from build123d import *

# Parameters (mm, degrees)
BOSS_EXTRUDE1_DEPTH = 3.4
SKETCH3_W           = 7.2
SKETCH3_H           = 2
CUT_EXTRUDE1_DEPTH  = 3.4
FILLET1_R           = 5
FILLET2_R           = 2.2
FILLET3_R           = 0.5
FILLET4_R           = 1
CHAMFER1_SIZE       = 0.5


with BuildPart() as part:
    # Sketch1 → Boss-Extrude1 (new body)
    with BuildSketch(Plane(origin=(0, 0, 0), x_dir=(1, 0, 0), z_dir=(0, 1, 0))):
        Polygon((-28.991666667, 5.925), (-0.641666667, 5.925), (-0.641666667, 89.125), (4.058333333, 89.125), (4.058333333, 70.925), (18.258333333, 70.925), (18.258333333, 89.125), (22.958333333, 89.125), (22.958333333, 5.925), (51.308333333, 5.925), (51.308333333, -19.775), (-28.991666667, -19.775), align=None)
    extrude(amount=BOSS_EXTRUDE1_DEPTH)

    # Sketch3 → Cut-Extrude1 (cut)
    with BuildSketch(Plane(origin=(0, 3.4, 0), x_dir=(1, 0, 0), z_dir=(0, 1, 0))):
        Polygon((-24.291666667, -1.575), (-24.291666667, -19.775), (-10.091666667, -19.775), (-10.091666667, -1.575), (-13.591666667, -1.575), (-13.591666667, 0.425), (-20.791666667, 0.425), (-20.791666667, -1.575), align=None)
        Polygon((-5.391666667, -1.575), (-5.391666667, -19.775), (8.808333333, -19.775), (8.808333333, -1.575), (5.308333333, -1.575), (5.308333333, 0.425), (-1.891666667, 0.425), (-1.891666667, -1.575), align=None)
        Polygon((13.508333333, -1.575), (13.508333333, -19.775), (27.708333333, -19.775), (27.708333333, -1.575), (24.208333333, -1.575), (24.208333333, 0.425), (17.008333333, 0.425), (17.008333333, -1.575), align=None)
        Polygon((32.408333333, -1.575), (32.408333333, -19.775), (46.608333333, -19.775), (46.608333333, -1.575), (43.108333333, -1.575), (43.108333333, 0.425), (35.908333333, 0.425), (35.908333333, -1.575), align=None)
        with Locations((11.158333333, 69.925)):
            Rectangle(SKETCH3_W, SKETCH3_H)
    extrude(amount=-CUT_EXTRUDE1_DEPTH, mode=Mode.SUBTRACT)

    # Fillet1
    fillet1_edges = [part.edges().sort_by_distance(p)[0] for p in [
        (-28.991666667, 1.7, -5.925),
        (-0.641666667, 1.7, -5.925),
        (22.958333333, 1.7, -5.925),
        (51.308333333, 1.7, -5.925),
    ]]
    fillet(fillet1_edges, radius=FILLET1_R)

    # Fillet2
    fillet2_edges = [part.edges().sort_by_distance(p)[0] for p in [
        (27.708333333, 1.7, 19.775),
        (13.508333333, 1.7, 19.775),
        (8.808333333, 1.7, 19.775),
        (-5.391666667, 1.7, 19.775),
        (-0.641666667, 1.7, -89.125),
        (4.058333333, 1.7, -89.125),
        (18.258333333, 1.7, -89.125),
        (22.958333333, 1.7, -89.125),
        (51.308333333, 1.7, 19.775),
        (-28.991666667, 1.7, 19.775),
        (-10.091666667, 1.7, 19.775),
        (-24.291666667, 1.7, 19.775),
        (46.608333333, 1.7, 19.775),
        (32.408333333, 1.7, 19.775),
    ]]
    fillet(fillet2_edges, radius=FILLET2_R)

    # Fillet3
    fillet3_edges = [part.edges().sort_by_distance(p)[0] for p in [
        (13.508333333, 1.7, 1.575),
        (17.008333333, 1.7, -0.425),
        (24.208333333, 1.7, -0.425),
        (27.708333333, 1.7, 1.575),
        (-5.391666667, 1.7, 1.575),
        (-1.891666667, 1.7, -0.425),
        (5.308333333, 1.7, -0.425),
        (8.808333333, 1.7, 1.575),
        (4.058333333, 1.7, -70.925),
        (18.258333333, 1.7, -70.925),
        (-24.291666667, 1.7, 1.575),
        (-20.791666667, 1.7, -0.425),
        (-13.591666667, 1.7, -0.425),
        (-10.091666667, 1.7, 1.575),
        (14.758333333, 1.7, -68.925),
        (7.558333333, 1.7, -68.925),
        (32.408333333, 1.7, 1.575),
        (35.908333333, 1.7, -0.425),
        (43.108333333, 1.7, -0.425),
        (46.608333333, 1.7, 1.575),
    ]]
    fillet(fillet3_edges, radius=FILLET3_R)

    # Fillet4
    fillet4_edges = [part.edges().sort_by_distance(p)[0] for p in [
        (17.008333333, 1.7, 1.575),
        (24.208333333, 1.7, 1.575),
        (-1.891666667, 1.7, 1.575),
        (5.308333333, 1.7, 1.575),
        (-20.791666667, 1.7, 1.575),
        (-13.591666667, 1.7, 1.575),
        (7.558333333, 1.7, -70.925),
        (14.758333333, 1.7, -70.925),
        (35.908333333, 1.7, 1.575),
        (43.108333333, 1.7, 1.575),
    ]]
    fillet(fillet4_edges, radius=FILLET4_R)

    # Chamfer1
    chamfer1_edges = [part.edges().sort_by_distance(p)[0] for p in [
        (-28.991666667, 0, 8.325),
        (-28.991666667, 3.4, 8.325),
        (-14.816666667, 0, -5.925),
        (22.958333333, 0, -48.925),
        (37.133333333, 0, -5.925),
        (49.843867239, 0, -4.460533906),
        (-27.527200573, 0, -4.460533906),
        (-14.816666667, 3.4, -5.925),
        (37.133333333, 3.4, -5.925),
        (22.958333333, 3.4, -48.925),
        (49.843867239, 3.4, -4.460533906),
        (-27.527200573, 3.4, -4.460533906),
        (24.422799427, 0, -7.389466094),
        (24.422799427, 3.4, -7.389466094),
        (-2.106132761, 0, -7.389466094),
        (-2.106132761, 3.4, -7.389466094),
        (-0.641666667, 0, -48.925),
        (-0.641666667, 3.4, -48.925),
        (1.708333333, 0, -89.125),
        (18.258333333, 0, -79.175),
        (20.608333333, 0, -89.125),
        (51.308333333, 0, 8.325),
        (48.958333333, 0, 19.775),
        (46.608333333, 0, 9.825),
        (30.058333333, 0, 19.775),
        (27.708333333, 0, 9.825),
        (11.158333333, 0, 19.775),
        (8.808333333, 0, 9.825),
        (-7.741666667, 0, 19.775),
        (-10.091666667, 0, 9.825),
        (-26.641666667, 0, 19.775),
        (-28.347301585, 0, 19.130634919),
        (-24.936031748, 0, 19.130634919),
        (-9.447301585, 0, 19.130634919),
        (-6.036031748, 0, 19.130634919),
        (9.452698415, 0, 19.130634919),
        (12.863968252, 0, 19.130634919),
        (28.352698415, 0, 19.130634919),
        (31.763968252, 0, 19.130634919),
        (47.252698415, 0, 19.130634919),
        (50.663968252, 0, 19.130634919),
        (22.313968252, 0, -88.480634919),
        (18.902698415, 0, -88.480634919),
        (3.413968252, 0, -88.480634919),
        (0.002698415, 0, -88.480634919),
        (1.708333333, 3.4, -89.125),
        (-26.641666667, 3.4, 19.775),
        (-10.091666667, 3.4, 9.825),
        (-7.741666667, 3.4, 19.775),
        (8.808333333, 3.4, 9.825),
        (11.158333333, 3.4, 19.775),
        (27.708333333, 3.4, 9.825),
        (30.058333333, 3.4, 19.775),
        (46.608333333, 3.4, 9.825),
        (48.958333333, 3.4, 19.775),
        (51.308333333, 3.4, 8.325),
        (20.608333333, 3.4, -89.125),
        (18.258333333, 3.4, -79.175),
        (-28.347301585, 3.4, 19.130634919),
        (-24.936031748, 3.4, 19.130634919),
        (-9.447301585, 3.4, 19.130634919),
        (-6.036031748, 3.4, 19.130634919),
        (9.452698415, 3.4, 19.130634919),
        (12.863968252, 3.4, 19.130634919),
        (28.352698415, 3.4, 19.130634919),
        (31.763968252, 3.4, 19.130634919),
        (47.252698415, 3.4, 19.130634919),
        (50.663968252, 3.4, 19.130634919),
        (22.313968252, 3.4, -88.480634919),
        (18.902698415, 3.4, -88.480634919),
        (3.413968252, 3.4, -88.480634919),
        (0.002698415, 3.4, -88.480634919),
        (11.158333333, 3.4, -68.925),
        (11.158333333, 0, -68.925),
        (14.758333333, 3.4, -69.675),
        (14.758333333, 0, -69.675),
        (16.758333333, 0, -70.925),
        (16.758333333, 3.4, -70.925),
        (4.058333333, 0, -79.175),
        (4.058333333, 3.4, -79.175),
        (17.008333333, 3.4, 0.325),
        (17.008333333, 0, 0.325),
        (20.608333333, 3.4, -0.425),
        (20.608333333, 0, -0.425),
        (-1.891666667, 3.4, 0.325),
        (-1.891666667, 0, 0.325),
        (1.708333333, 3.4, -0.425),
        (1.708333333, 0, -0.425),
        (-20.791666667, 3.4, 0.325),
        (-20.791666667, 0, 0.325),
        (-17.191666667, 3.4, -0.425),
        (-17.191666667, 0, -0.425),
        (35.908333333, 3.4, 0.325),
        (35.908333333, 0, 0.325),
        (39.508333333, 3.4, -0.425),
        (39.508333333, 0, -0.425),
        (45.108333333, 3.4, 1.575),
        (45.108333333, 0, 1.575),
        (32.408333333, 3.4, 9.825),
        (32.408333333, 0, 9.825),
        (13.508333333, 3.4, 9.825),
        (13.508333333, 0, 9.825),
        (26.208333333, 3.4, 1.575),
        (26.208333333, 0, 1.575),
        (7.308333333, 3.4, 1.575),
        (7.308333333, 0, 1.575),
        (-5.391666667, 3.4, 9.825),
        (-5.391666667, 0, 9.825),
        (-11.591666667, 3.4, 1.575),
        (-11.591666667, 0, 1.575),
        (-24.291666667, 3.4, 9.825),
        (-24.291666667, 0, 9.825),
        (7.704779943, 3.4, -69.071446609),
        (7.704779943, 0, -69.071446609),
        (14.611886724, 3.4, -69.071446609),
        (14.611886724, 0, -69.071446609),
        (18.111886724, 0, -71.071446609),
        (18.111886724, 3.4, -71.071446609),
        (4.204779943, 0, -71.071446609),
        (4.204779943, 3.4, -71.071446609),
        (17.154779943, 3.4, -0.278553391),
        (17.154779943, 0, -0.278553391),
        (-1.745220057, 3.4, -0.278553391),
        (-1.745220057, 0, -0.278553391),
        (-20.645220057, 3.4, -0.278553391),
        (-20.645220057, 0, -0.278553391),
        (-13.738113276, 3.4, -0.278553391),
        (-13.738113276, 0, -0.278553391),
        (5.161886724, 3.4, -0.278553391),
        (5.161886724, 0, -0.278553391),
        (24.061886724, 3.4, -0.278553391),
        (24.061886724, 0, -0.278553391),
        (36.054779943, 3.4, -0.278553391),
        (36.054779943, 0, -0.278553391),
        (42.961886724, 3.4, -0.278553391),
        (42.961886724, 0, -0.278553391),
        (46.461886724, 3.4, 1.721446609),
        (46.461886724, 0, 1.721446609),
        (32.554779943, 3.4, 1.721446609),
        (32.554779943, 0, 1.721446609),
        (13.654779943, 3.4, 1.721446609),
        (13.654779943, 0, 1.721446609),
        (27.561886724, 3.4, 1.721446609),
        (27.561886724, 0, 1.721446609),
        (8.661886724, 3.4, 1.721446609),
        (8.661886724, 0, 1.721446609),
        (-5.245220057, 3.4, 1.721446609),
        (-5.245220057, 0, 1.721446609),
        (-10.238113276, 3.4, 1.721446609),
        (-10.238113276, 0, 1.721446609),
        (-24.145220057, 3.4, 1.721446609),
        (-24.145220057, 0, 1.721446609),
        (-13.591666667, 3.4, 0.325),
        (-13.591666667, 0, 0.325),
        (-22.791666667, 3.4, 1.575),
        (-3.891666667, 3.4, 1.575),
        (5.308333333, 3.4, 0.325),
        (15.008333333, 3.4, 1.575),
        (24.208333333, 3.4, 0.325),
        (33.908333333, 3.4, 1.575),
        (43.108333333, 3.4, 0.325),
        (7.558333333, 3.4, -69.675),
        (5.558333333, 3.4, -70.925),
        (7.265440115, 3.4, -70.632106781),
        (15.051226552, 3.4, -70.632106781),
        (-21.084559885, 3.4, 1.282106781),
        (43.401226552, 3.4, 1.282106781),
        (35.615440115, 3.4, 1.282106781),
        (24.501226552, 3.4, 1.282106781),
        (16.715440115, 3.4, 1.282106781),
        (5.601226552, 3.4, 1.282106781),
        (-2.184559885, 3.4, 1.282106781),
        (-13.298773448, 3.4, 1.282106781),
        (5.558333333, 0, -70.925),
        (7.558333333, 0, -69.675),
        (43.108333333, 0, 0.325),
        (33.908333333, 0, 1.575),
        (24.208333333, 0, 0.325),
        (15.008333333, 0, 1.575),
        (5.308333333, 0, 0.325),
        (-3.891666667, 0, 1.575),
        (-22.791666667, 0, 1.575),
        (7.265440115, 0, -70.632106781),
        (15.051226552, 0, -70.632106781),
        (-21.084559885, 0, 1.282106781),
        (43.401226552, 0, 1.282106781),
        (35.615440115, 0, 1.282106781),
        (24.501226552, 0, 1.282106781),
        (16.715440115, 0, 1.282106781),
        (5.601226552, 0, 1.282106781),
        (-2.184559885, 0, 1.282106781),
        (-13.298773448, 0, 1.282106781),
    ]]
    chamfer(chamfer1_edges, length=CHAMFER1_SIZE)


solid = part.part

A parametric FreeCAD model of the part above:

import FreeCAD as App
import Part
import Sketcher

V = App.Vector
Q = App.Units.Quantity


def edges_at(feature, points):
    """Names of the edges that pass closest to the given points."""
    edges = feature.Shape.Edges
    near = lambda p: min(range(len(edges)), key=lambda i: edges[i].distToShape(Part.Vertex(*p))[0])
    return sorted({f"Edge{near(p) + 1}" for p in points})


def add_polygon(sketch, points):
    """Adds a closed chain of lines whose ends are joined by coincident constraints."""
    first, n = sketch.GeometryCount, len(points)
    for a, b in zip(points, points[1:] + points[:1]):
        sketch.addGeometry(Part.LineSegment(App.Vector(*a, 0), App.Vector(*b, 0)), False)
    for i in range(n):
        sketch.addConstraint(Sketcher.Constraint("Coincident", first + i, 2, first + (i + 1) % n, 1))

doc = App.newDocument("Part")
body = doc.addObject("PartDesign::Body", "Body")

sketch1 = body.newObject("Sketcher::SketchObject", "Sketch")
sketch1.AttachmentSupport = (doc.getObject("XZ_Plane"), [""])
sketch1.MapMode = "FlatFace"
add_polygon(sketch1, [(-0.6, -5.9), (-29, -5.9), (-29, 19.8), (51.3, 19.8), (51.3, -5.9), (23, -5.9), (23, -89.1), (18.3, -89.1), (18.3, -70.9), (4.1, -70.9), (4.1, -89.1), (-0.6, -89.1)])
sketch1.addConstraint(Sketcher.Constraint("Horizontal", 0))
sketch1.addConstraint(Sketcher.Constraint("Vertical", 1))
sketch1.addConstraint(Sketcher.Constraint("Horizontal", 2))
sketch1.addConstraint(Sketcher.Constraint("Vertical", 3))
sketch1.addConstraint(Sketcher.Constraint("Horizontal", 4))
sketch1.addConstraint(Sketcher.Constraint("Vertical", 5))
sketch1.addConstraint(Sketcher.Constraint("Horizontal", 6))
sketch1.addConstraint(Sketcher.Constraint("Vertical", 7))
sketch1.addConstraint(Sketcher.Constraint("Horizontal", 8))
sketch1.addConstraint(Sketcher.Constraint("Vertical", 9))
sketch1.addConstraint(Sketcher.Constraint("Horizontal", 10))
sketch1.addConstraint(Sketcher.Constraint("Vertical", 11))
sketch1.addConstraint(Sketcher.Constraint("Horizontal", 0, 2, 3, 2))
sketch1.addConstraint(Sketcher.Constraint("Horizontal", 6, 2, 9, 2))
sketch1.addConstraint(Sketcher.Constraint("Equal", 0, 4))
sketch1.addConstraint(Sketcher.Constraint("Equal", 6, 10))
sketch1.addConstraint(Sketcher.Constraint("DistanceX", 2, 1, 2, 2, Q("80.3 mm")))
sketch1.addConstraint(Sketcher.Constraint("DistanceX", 6, 2, 6, 1, Q("4.7 mm")))
sketch1.addConstraint(Sketcher.Constraint("DistanceX", 8, 2, 8, 1, Q("14.2 mm")))
sketch1.addConstraint(Sketcher.Constraint("DistanceY", 1, 1, 1, 2, Q("25.7 mm")))
sketch1.addConstraint(Sketcher.Constraint("DistanceY", 5, 2, 5, 1, Q("83.2 mm")))
sketch1.addConstraint(Sketcher.Constraint("DistanceY", 7, 1, 7, 2, Q("18.2 mm")))
sketch1.addConstraint(Sketcher.Constraint("DistanceY", 0, 2, -1, 1, Q("5.925 mm")))
sketch1.addConstraint(Sketcher.Constraint("DistanceX", 0, 2, -1, 1, Q("28.991667 mm")))
pad1 = body.newObject("PartDesign::Pad", "Pad")
pad1.Profile = sketch1
pad1.Length = 3.4
pad1.Reversed = True

sketch2 = body.newObject("Sketcher::SketchObject", "Sketch001")
sketch2.AttachmentSupport = (doc.getObject("XZ_Plane"), [""])
sketch2.MapMode = "FlatFace"
sketch2.AttachmentOffset = App.Placement(V(0, 0, -3.4), App.Rotation())
add_polygon(sketch2, [(-24.3, 1.6), (-24.3, 19.8), (-10.1, 19.8), (-10.1, 1.6), (-13.6, 1.6), (-13.6, -0.4), (-20.8, -0.4), (-20.8, 1.6)])
add_polygon(sketch2, [(-5.4, 1.6), (-5.4, 19.8), (8.8, 19.8), (8.8, 1.6), (5.3, 1.6), (5.3, -0.4), (-1.9, -0.4), (-1.9, 1.6)])
add_polygon(sketch2, [(13.5, 1.6), (13.5, 19.8), (27.7, 19.8), (27.7, 1.6), (24.2, 1.6), (24.2, -0.4), (17, -0.4), (17, 1.6)])
add_polygon(sketch2, [(32.4, 1.6), (32.4, 19.8), (46.6, 19.8), (46.6, 1.6), (43.1, 1.6), (43.1, -0.4), (35.9, -0.4), (35.9, 1.6)])
add_polygon(sketch2, [(7.6, -70.9), (7.6, -68.9), (14.8, -68.9), (14.8, -70.9)])
sketch2.addConstraint(Sketcher.Constraint("Vertical", 0))
sketch2.addConstraint(Sketcher.Constraint("Horizontal", 1))
sketch2.addConstraint(Sketcher.Constraint("Vertical", 2))
sketch2.addConstraint(Sketcher.Constraint("Horizontal", 3))
sketch2.addConstraint(Sketcher.Constraint("Vertical", 4))
sketch2.addConstraint(Sketcher.Constraint("Horizontal", 5))
sketch2.addConstraint(Sketcher.Constraint("Vertical", 6))
sketch2.addConstraint(Sketcher.Constraint("Horizontal", 7))
sketch2.addConstraint(Sketcher.Constraint("Vertical", 8))
sketch2.addConstraint(Sketcher.Constraint("Horizontal", 9))
sketch2.addConstraint(Sketcher.Constraint("Vertical", 10))
sketch2.addConstraint(Sketcher.Constraint("Horizontal", 11))
sketch2.addConstraint(Sketcher.Constraint("Vertical", 12))
sketch2.addConstraint(Sketcher.Constraint("Horizontal", 13))
sketch2.addConstraint(Sketcher.Constraint("Vertical", 14))
sketch2.addConstraint(Sketcher.Constraint("Horizontal", 15))
sketch2.addConstraint(Sketcher.Constraint("Vertical", 16))
sketch2.addConstraint(Sketcher.Constraint("Horizontal", 17))
sketch2.addConstraint(Sketcher.Constraint("Vertical", 18))
sketch2.addConstraint(Sketcher.Constraint("Horizontal", 19))
sketch2.addConstraint(Sketcher.Constraint("Vertical", 20))
sketch2.addConstraint(Sketcher.Constraint("Horizontal", 21))
sketch2.addConstraint(Sketcher.Constraint("Vertical", 22))
sketch2.addConstraint(Sketcher.Constraint("Horizontal", 23))
sketch2.addConstraint(Sketcher.Constraint("Vertical", 24))
sketch2.addConstraint(Sketcher.Constraint("Horizontal", 25))
sketch2.addConstraint(Sketcher.Constraint("Vertical", 26))
sketch2.addConstraint(Sketcher.Constraint("Horizontal", 27))
sketch2.addConstraint(Sketcher.Constraint("Vertical", 28))
sketch2.addConstraint(Sketcher.Constraint("Horizontal", 29))
sketch2.addConstraint(Sketcher.Constraint("Vertical", 30))
sketch2.addConstraint(Sketcher.Constraint("Horizontal", 31))
sketch2.addConstraint(Sketcher.Constraint("Vertical", 32))
sketch2.addConstraint(Sketcher.Constraint("Horizontal", 33))
sketch2.addConstraint(Sketcher.Constraint("Vertical", 34))
sketch2.addConstraint(Sketcher.Constraint("Horizontal", 35))
sketch2.addConstraint(Sketcher.Constraint("Horizontal", 3, 2, 6, 2))
sketch2.addConstraint(Sketcher.Constraint("Horizontal", 1, 2, 8, 2))
sketch2.addConstraint(Sketcher.Constraint("Horizontal", 7, 2, 10, 2))
sketch2.addConstraint(Sketcher.Constraint("Horizontal", 5, 2, 12, 2))
sketch2.addConstraint(Sketcher.Constraint("Horizontal", 11, 2, 14, 2))
sketch2.addConstraint(Sketcher.Constraint("Horizontal", 9, 2, 16, 2))
sketch2.addConstraint(Sketcher.Constraint("Horizontal", 15, 2, 18, 2))
sketch2.addConstraint(Sketcher.Constraint("Horizontal", 13, 2, 20, 2))
sketch2.addConstraint(Sketcher.Constraint("Horizontal", 19, 2, 22, 2))
sketch2.addConstraint(Sketcher.Constraint("Horizontal", 17, 2, 24, 2))
sketch2.addConstraint(Sketcher.Constraint("Horizontal", 23, 2, 26, 2))
sketch2.addConstraint(Sketcher.Constraint("Horizontal", 21, 2, 28, 2))
sketch2.addConstraint(Sketcher.Constraint("Horizontal", 27, 2, 30, 2))
sketch2.addConstraint(Sketcher.Constraint("Equal", 3, 7))
sketch2.addConstraint(Sketcher.Constraint("Equal", 1, 9))
sketch2.addConstraint(Sketcher.Constraint("Equal", 7, 11))
sketch2.addConstraint(Sketcher.Constraint("Equal", 5, 13))
sketch2.addConstraint(Sketcher.Constraint("Equal", 9, 17))
sketch2.addConstraint(Sketcher.Constraint("Equal", 15, 19))
sketch2.addConstraint(Sketcher.Constraint("Equal", 13, 21))
sketch2.addConstraint(Sketcher.Constraint("Equal", 17, 25))
sketch2.addConstraint(Sketcher.Constraint("Equal", 23, 27))
sketch2.addConstraint(Sketcher.Constraint("Equal", 21, 29))
sketch2.addConstraint(Sketcher.Constraint("Equal", 29, 33))
sketch2.addConstraint(Sketcher.Constraint("Equal", 30, 32))
sketch2.addConstraint(Sketcher.Constraint("DistanceY", 4, 2, 4, 1, Q("2 mm")))
sketch2.addConstraint(Sketcher.Constraint("DistanceX", 1, 1, 1, 2, Q("14.2 mm")))
sketch2.addConstraint(Sketcher.Constraint("DistanceX", 3, 2, 3, 1, Q("3.5 mm")))
sketch2.addConstraint(Sketcher.Constraint("DistanceY", 0, 1, 0, 2, Q("18.2 mm")))
sketch2.addConstraint(Sketcher.Constraint("DistanceX", 1, 2, 8, 2, Q("4.7 mm")))
sketch2.addConstraint(Sketcher.Constraint("DistanceX", 9, 2, 16, 2, Q("4.7 mm")))
sketch2.addConstraint(Sketcher.Constraint("DistanceX", 17, 2, 24, 2, Q("4.7 mm")))
sketch2.addConstraint(Sketcher.Constraint("DistanceY", 32, 2, 12, 2, Q("68.5 mm")))
sketch2.addConstraint(Sketcher.Constraint("DistanceX", 12, 2, 32, 2, Q("2.25 mm")))
sketch2.addConstraint(Sketcher.Constraint("DistanceY", -1, 1, 0, 2, Q("19.775 mm")))
sketch2.addConstraint(Sketcher.Constraint("DistanceX", 0, 2, -1, 1, Q("24.291667 mm")))
pocket1 = body.newObject("PartDesign::Pocket", "Pocket")
pocket1.Profile = sketch2
pocket1.Length = 3.4
pocket1.Reversed = True
doc.recompute()

fillet = body.newObject("PartDesign::Fillet", "Fillet")
fillet.Base = (pocket1, edges_at(pocket1, [
    (-28.992, 1.7, -5.925),
    (-0.642, 1.7, -5.925),
    (22.958, 1.7, -5.925),
    (51.308, 1.7, -5.925),
]))
fillet.Radius = 5
doc.recompute()

fillet2 = body.newObject("PartDesign::Fillet", "Fillet001")
fillet2.Base = (fillet, edges_at(fillet, [
    (27.708, 1.7, 19.775),
    (13.508, 1.7, 19.775),
    (8.808, 1.7, 19.775),
    (-5.392, 1.7, 19.775),
    (-0.642, 1.7, -89.125),
    (4.058, 1.7, -89.125),
    (18.258, 1.7, -89.125),
    (22.958, 1.7, -89.125),
    (51.308, 1.7, 19.775),
    (-28.992, 1.7, 19.775),
    (-10.092, 1.7, 19.775),
    (-24.292, 1.7, 19.775),
    (46.608, 1.7, 19.775),
    (32.408, 1.7, 19.775),
]))
fillet2.Radius = 2.2
doc.recompute()

fillet3 = body.newObject("PartDesign::Fillet", "Fillet002")
fillet3.Base = (fillet2, edges_at(fillet2, [
    (13.508, 1.7, 1.575),
    (17.008, 1.7, -0.425),
    (24.208, 1.7, -0.425),
    (27.708, 1.7, 1.575),
    (-5.392, 1.7, 1.575),
    (-1.892, 1.7, -0.425),
    (5.308, 1.7, -0.425),
    (8.808, 1.7, 1.575),
    (4.058, 1.7, -70.925),
    (18.258, 1.7, -70.925),
    (-24.292, 1.7, 1.575),
    (-20.792, 1.7, -0.425),
    (-13.592, 1.7, -0.425),
    (-10.092, 1.7, 1.575),
    (14.758, 1.7, -68.925),
    (7.558, 1.7, -68.925),
    (32.408, 1.7, 1.575),
    (35.908, 1.7, -0.425),
    (43.108, 1.7, -0.425),
    (46.608, 1.7, 1.575),
]))
fillet3.Radius = 0.5
doc.recompute()

fillet4 = body.newObject("PartDesign::Fillet", "Fillet003")
fillet4.Base = (fillet3, edges_at(fillet3, [
    (17.008, 1.7, 1.575),
    (24.208, 1.7, 1.575),
    (-1.892, 1.7, 1.575),
    (5.308, 1.7, 1.575),
    (-20.792, 1.7, 1.575),
    (-13.592, 1.7, 1.575),
    (7.558, 1.7, -70.925),
    (14.758, 1.7, -70.925),
    (35.908, 1.7, 1.575),
    (43.108, 1.7, 1.575),
]))
fillet4.Radius = 1
doc.recompute()

chamfer = body.newObject("PartDesign::Chamfer", "Chamfer")
chamfer.Base = (fillet4, edges_at(fillet4, [
    (-28.992, 0, 8.325),
    (-28.992, 3.4, 8.325),
    (-14.817, 0, -5.925),
    (22.958, 0, -48.925),
    (37.133, 0, -5.925),
    (49.844, 0, -4.461),
    (-27.527, 0, -4.461),
    (-14.817, 3.4, -5.925),
    (37.133, 3.4, -5.925),
    (22.958, 3.4, -48.925),
    (49.844, 3.4, -4.461),
    (-27.527, 3.4, -4.461),
    (24.423, 0, -7.389),
    (24.423, 3.4, -7.389),
    (-2.106, 0, -7.389),
    (-2.106, 3.4, -7.389),
    (-0.642, 0, -48.925),
    (-0.642, 3.4, -48.925),
    (1.708, 0, -89.125),
    (18.258, 0, -79.175),
    (20.608, 0, -89.125),
    (51.308, 0, 8.325),
    (48.958, 0, 19.775),
    (46.608, 0, 9.825),
    (30.058, 0, 19.775),
    (27.708, 0, 9.825),
    (11.158, 0, 19.775),
    (8.808, 0, 9.825),
    (-7.742, 0, 19.775),
    (-10.092, 0, 9.825),
    (-26.642, 0, 19.775),
    (-28.347, 0, 19.131),
    (-24.936, 0, 19.131),
    (-9.447, 0, 19.131),
    (-6.036, 0, 19.131),
    (9.453, 0, 19.131),
    (12.864, 0, 19.131),
    (28.353, 0, 19.131),
    (31.764, 0, 19.131),
    (47.253, 0, 19.131),
    (50.664, 0, 19.131),
    (22.314, 0, -88.481),
    (18.903, 0, -88.481),
    (3.414, 0, -88.481),
    (0.003, 0, -88.481),
    (1.708, 3.4, -89.125),
    (-26.642, 3.4, 19.775),
    (-10.092, 3.4, 9.825),
    (-7.742, 3.4, 19.775),
    (8.808, 3.4, 9.825),
    (11.158, 3.4, 19.775),
    (27.708, 3.4, 9.825),
    (30.058, 3.4, 19.775),
    (46.608, 3.4, 9.825),
    (48.958, 3.4, 19.775),
    (51.308, 3.4, 8.325),
    (20.608, 3.4, -89.125),
    (18.258, 3.4, -79.175),
    (-28.347, 3.4, 19.131),
    (-24.936, 3.4, 19.131),
    (-9.447, 3.4, 19.131),
    (-6.036, 3.4, 19.131),
    (9.453, 3.4, 19.131),
    (12.864, 3.4, 19.131),
    (28.353, 3.4, 19.131),
    (31.764, 3.4, 19.131),
    (47.253, 3.4, 19.131),
    (50.664, 3.4, 19.131),
    (22.314, 3.4, -88.481),
    (18.903, 3.4, -88.481),
    (3.414, 3.4, -88.481),
    (0.003, 3.4, -88.481),
    (11.158, 3.4, -68.925),
    (11.158, 0, -68.925),
    (14.758, 3.4, -69.675),
    (14.758, 0, -69.675),
    (16.758, 0, -70.925),
    (16.758, 3.4, -70.925),
    (4.058, 0, -79.175),
    (4.058, 3.4, -79.175),
    (17.008, 3.4, 0.325),
    (17.008, 0, 0.325),
    (20.608, 3.4, -0.425),
    (20.608, 0, -0.425),
    (-1.892, 3.4, 0.325),
    (-1.892, 0, 0.325),
    (1.708, 3.4, -0.425),
    (1.708, 0, -0.425),
    (-20.792, 3.4, 0.325),
    (-20.792, 0, 0.325),
    (-17.192, 3.4, -0.425),
    (-17.192, 0, -0.425),
    (35.908, 3.4, 0.325),
    (35.908, 0, 0.325),
    (39.508, 3.4, -0.425),
    (39.508, 0, -0.425),
    (45.108, 3.4, 1.575),
    (45.108, 0, 1.575),
    (32.408, 3.4, 9.825),
    (32.408, 0, 9.825),
    (13.508, 3.4, 9.825),
    (13.508, 0, 9.825),
    (26.208, 3.4, 1.575),
    (26.208, 0, 1.575),
    (7.308, 3.4, 1.575),
    (7.308, 0, 1.575),
    (-5.392, 3.4, 9.825),
    (-5.392, 0, 9.825),
    (-11.592, 3.4, 1.575),
    (-11.592, 0, 1.575),
    (-24.292, 3.4, 9.825),
    (-24.292, 0, 9.825),
    (7.705, 3.4, -69.071),
    (7.705, 0, -69.071),
    (14.612, 3.4, -69.071),
    (14.612, 0, -69.071),
    (18.112, 0, -71.071),
    (18.112, 3.4, -71.071),
    (4.205, 0, -71.071),
    (4.205, 3.4, -71.071),
    (17.155, 3.4, -0.279),
    (17.155, 0, -0.279),
    (-1.745, 3.4, -0.279),
    (-1.745, 0, -0.279),
    (-20.645, 3.4, -0.279),
    (-20.645, 0, -0.279),
    (-13.738, 3.4, -0.279),
    (-13.738, 0, -0.279),
    (5.162, 3.4, -0.279),
    (5.162, 0, -0.279),
    (24.062, 3.4, -0.279),
    (24.062, 0, -0.279),
    (36.055, 3.4, -0.279),
    (36.055, 0, -0.279),
    (42.962, 3.4, -0.279),
    (42.962, 0, -0.279),
    (46.462, 3.4, 1.721),
    (46.462, 0, 1.721),
    (32.555, 3.4, 1.721),
    (32.555, 0, 1.721),
    (13.655, 3.4, 1.721),
    (13.655, 0, 1.721),
    (27.562, 3.4, 1.721),
    (27.562, 0, 1.721),
    (8.662, 3.4, 1.721),
    (8.662, 0, 1.721),
    (-5.245, 3.4, 1.721),
    (-5.245, 0, 1.721),
    (-10.238, 3.4, 1.721),
    (-10.238, 0, 1.721),
    (-24.145, 3.4, 1.721),
    (-24.145, 0, 1.721),
    (-13.592, 3.4, 0.325),
    (-13.592, 0, 0.325),
    (-22.792, 3.4, 1.575),
    (-3.892, 3.4, 1.575),
    (5.308, 3.4, 0.325),
    (15.008, 3.4, 1.575),
    (24.208, 3.4, 0.325),
    (33.908, 3.4, 1.575),
    (43.108, 3.4, 0.325),
    (7.558, 3.4, -69.675),
    (5.558, 3.4, -70.925),
    (7.265, 3.4, -70.632),
    (15.051, 3.4, -70.632),
    (-21.085, 3.4, 1.282),
    (43.401, 3.4, 1.282),
    (35.615, 3.4, 1.282),
    (24.501, 3.4, 1.282),
    (16.715, 3.4, 1.282),
    (5.601, 3.4, 1.282),
    (-2.185, 3.4, 1.282),
    (-13.299, 3.4, 1.282),
    (5.558, 0, -70.925),
    (7.558, 0, -69.675),
    (43.108, 0, 0.325),
    (33.908, 0, 1.575),
    (24.208, 0, 0.325),
    (15.008, 0, 1.575),
    (5.308, 0, 0.325),
    (-3.892, 0, 1.575),
    (-22.792, 0, 1.575),
    (7.265, 0, -70.632),
    (15.051, 0, -70.632),
    (-21.085, 0, 1.282),
    (43.401, 0, 1.282),
    (35.615, 0, 1.282),
    (24.501, 0, 1.282),
    (16.715, 0, 1.282),
    (5.601, 0, 1.282),
    (-2.185, 0, 1.282),
    (-13.299, 0, 1.282),
]))
chamfer.Size = 0.5

doc.recompute()
